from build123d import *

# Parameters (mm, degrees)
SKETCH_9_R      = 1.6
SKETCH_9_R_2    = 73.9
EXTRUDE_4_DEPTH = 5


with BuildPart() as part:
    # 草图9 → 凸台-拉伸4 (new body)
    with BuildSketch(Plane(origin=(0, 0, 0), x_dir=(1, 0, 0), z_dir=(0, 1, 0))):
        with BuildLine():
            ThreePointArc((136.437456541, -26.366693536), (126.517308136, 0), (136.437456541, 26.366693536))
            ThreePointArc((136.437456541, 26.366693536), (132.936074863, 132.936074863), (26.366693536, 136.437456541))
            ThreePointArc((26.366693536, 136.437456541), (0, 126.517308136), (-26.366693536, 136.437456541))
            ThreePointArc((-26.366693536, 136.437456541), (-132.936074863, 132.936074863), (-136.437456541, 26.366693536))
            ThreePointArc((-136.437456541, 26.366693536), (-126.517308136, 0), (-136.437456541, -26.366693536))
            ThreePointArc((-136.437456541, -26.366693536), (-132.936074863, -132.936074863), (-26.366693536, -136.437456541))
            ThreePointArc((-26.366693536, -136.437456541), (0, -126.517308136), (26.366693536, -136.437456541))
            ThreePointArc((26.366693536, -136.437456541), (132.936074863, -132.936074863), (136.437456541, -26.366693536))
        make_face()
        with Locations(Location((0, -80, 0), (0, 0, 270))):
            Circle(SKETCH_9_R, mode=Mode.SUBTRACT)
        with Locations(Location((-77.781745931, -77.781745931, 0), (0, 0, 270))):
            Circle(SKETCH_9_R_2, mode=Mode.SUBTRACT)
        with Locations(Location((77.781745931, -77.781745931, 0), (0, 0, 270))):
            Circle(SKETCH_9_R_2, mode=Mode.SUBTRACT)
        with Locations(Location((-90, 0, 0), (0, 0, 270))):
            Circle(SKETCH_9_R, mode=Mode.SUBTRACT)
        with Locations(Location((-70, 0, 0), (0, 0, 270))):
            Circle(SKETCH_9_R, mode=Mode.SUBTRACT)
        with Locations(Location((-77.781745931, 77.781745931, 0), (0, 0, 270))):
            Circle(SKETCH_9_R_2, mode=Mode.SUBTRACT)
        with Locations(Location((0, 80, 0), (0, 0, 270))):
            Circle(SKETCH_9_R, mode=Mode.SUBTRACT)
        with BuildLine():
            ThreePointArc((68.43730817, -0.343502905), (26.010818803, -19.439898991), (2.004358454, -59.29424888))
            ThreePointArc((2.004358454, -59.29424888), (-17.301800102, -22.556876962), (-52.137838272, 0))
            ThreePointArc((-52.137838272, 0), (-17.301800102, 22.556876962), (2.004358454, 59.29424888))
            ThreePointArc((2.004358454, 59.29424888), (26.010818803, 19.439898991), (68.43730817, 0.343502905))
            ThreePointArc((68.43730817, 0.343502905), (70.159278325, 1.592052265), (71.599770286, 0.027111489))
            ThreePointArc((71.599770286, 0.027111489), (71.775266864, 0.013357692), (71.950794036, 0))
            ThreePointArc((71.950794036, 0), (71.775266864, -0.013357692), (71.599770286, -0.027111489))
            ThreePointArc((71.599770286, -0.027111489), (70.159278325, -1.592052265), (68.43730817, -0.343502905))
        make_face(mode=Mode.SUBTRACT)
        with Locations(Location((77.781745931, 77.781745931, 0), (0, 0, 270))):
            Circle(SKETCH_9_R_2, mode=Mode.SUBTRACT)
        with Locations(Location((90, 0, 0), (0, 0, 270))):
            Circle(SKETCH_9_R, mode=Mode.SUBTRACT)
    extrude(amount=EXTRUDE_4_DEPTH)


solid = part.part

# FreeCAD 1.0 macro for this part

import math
import FreeCAD as App
import Part
import Sketcher

V = App.Vector

doc = App.newDocument("Part")
params = doc.addObject("Spreadsheet::Sheet", "Params")
for row, (alias, value) in enumerate([
    ("sketch1_radius", "40 mm"),
    ("sketch1_radius2", "78 mm"),
    ("sketch1_diameter", "147.8 mm"),
    ("sketch1_diameter2", "3.2 mm"),
    ("sketch1_radius3", "81.9 mm"),
    ("pad1_length", "5 mm"),
], start=1):
    params.set(f"A{row}", alias)
    params.set(f"B{row}", "=" + value)
    params.setAlias(f"B{row}", alias)

body = doc.addObject("PartDesign::Body", "Body")

# Sketch on XZ plane
sketch1 = body.newObject("Sketcher::SketchObject", "Sketch")
sketch1.AttachmentSupport = (doc.getObject("XZ_Plane"), [""])
sketch1.MapMode = "FlatFace"
sketch1.addGeometry(Part.ArcOfCircle(Part.Circle(V(166.52, 0, 0), V(0, 0, 1), 40), math.radians(139), math.radians(221)), False)
sketch1.addGeometry(Part.ArcOfCircle(Part.Circle(V(77.78, -77.78, 0), V(0, 0, 1), 78), math.radians(-131), math.radians(41)), False)
sketch1.addGeometry(Part.ArcOfCircle(Part.Circle(V(0, -166.52, 0), V(0, 0, 1), 40), math.radians(49), math.radians(131)), False)
sketch1.addGeometry(Part.ArcOfCircle(Part.Circle(V(-77.78, -77.78, 0), V(0, 0, 1), 78), math.radians(139), math.radians(311)), False)
sketch1.addGeometry(Part.ArcOfCircle(Part.Circle(V(-166.52, 0, 0), V(0, 0, 1), 40), math.radians(-41), math.radians(41)), False)
sketch1.addGeometry(Part.ArcOfCircle(Part.Circle(V(-77.78, 77.78, 0), V(0, 0, 1), 78), math.radians(49), math.radians(221)), False)
sketch1.addGeometry(Part.ArcOfCircle(Part.Circle(V(0, 166.52, 0), V(0, 0, 1), 40), math.radians(-131), math.radians(-49)), False)
sketch1.addGeometry(Part.ArcOfCircle(Part.Circle(V(77.78, 77.78, 0), V(0, 0, 1), 78), math.radians(-41), math.radians(131)), False)
sketch1.addGeometry(Part.Circle(V(-77.78, 77.78, 0), V(0, 0, 1), 73.9), False)
sketch1.addGeometry(Part.Circle(V(0, 80, 0), V(0, 0, 1), 1.6), False)
sketch1.addGeometry(Part.Circle(V(77.78, 77.78, 0), V(0, 0, 1), 73.9), False)
sketch1.addGeometry(Part.Circle(V(-90, 0, 0), V(0, 0, 1), 1.6), False)
sketch1.addGeometry(Part.Circle(V(-70, 0, 0), V(0, 0, 1), 1.6), False)
sketch1.addGeometry(Part.Circle(V(-77.78, -77.78, 0), V(0, 0, 1), 73.9), False)
sketch1.addGeometry(Part.ArcOfCircle(Part.Circle(V(70, 0, 0), V(0, 0, 1), 1.6), math.radians(1), math.radians(168)), False)
sketch1.addGeometry(Part.ArcOfCircle(Part.Circle(V(77.78, 77.78, 0), V(0, 0, 1), 78), math.radians(-166), math.radians(-97)), False)
sketch1.addGeometry(Part.ArcOfCircle(Part.Circle(V(-77.78, 77.78, 0), V(0, 0, 1), 81.9), math.radians(-72), math.radians(-13)), False)
sketch1.addGeometry(Part.ArcOfCircle(Part.Circle(V(-77.78, -77.78, 0), V(0, 0, 1), 81.9), math.radians(13), math.radians(72)), False)
sketch1.addGeometry(Part.ArcOfCircle(Part.Circle(V(77.78, -77.78, 0), V(0, 0, 1), 78), math.radians(97), math.radians(166)), False)
sketch1.addGeometry(Part.ArcOfCircle(Part.Circle(V(70, 0, 0), V(0, 0, 1), 1.6), math.radians(-168), math.radians(-1)), False)
sketch1.addGeometry(Part.ArcOfCircle(Part.Circle(V(77.78, -77.78, 0), V(0, 0, 1), 78), math.radians(94.29), math.radians(94.55)), False)
sketch1.addGeometry(Part.ArcOfCircle(Part.Circle(V(77.78, 77.78, 0), V(0, 0, 1), 78), math.radians(-94.55), math.radians(-94.29)), False)
sketch1.addGeometry(Part.Circle(V(90, 0, 0), V(0, 0, 1), 1.6), False)
sketch1.addGeometry(Part.Circle(V(0, -80, 0), V(0, 0, 1), 1.6), False)
sketch1.addGeometry(Part.Circle(V(77.78, -77.78, 0), V(0, 0, 1), 73.9), False)
sketch1.addConstraint(Sketcher.Constraint("Tangent", 0, 2, 1, 2))
sketch1.addConstraint(Sketcher.Constraint("Tangent", 1, 1, 2, 1))
sketch1.addConstraint(Sketcher.Constraint("Tangent", 2, 2, 3, 2))
sketch1.addConstraint(Sketcher.Constraint("Tangent", 3, 1, 4, 1))
sketch1.addConstraint(Sketcher.Constraint("Tangent", 4, 2, 5, 2))
sketch1.addConstraint(Sketcher.Constraint("Tangent", 5, 1, 6, 1))
sketch1.addConstraint(Sketcher.Constraint("Tangent", 6, 2, 7, 2))
sketch1.addConstraint(Sketcher.Constraint("Tangent", 7, 1, 0, 1))
sketch1.addConstraint(Sketcher.Constraint("Coincident", 14, 2, 15, 2))
sketch1.addConstraint(Sketcher.Constraint("Coincident", 15, 1, 16, 2))
sketch1.addConstraint(Sketcher.Constraint("Coincident", 16, 1, 17, 2))
sketch1.addConstraint(Sketcher.Constraint("Coincident", 17, 1, 18, 2))
sketch1.addConstraint(Sketcher.Constraint("Coincident", 18, 1, 19, 1))
sketch1.addConstraint(Sketcher.Constraint("Coincident", 19, 2, 20, 2))
sketch1.addConstraint(Sketcher.Constraint("Coincident", 20, 1, 21, 2))
sketch1.addConstraint(Sketcher.Constraint("Coincident", 21, 1, 14, 1))
sketch1.addConstraint(Sketcher.Constraint("Coincident", 8, 3, 5, 3))
sketch1.addConstraint(Sketcher.Constraint("Coincident", 10, 3, 7, 3))
sketch1.addConstraint(Sketcher.Constraint("Coincident", 13, 3, 3, 3))
sketch1.addConstraint(Sketcher.Constraint("Coincident", 15, 3, 7, 3))
sketch1.addConstraint(Sketcher.Constraint("Coincident", 16, 3, 5, 3))
sketch1.addConstraint(Sketcher.Constraint("Coincident", 17, 3, 3, 3))
sketch1.addConstraint(Sketcher.Constraint("Coincident", 18, 3, 1, 3))
sketch1.addConstraint(Sketcher.Constraint("Coincident", 19, 3, 14, 3))
sketch1.addConstraint(Sketcher.Constraint("Coincident", 24, 3, 1, 3))
sketch1.addConstraint(Sketcher.Constraint("Equal", 0, 2))
sketch1.addConstraint(Sketcher.Constraint("Equal", 1, 3))
sketch1.addConstraint(Sketcher.Constraint("Equal", 2, 4))
sketch1.addConstraint(Sketcher.Constraint("Equal", 3, 5))
sketch1.addConstraint(Sketcher.Constraint("Equal", 4, 6))
sketch1.addConstraint(Sketcher.Constraint("Equal", 5, 7))
sketch1.addConstraint(Sketcher.Constraint("Equal", 8, 10))
sketch1.addConstraint(Sketcher.Constraint("Equal", 9, 11))
sketch1.addConstraint(Sketcher.Constraint("Equal", 11, 12))
sketch1.addConstraint(Sketcher.Constraint("Equal", 10, 13))
sketch1.addConstraint(Sketcher.Constraint("Equal", 12, 14))
sketch1.addConstraint(Sketcher.Constraint("Equal", 7, 15))
sketch1.addConstraint(Sketcher.Constraint("Equal", 16, 17))
sketch1.addConstraint(Sketcher.Constraint("Equal", 15, 18))
sketch1.addConstraint(Sketcher.Constraint("Equal", 14, 19))
sketch1.addConstraint(Sketcher.Constraint("Equal", 20, 21))
sketch1.addConstraint(Sketcher.Constraint("Equal", 19, 22))
sketch1.addConstraint(Sketcher.Constraint("Equal", 22, 23))
sketch1.addConstraint(Sketcher.Constraint("Equal", 13, 24))
sketch1.addConstraint(Sketcher.Constraint("Symmetric", 0, 3, 4, 3, -1, 1))
sketch1.addConstraint(Sketcher.Constraint("Symmetric", 2, 3, 6, 3, -1, 1))
sketch1.addConstraint(Sketcher.Constraint("Symmetric", 12, 3, 14, 3, -1, 1))
sketch1.addConstraint(Sketcher.Constraint("Symmetric", 11, 3, 22, 3, -1, 1))
sketch1.addConstraint(Sketcher.Constraint("Symmetric", 9, 3, 23, 3, -1, 1))
sketch1.addConstraint(Sketcher.Constraint("Symmetric", 1, 3, 3, 3, -2))
sketch1.addConstraint(Sketcher.Constraint("Symmetric", 20, 3, 21, 3, -1))
sketch1.addConstraint(Sketcher.Constraint("PointOnObject", 9, 3, -2))
sketch1.addConstraint(Sketcher.Constraint("PointOnObject", 11, 3, -1))
sketch1.addConstraint(Sketcher.Constraint("PointOnObject", 12, 3, -1))
sketch1.addConstraint(Sketcher.Constraint("Vertical", 18, 3, 20, 3))
sketch1.addConstraint(Sketcher.Constraint("Radius", 0, 40.0))
sketch1.addConstraint(Sketcher.Constraint("Radius", 1, 78.0))
sketch1.addConstraint(Sketcher.Constraint("Diameter", 8, 147.8))
sketch1.addConstraint(Sketcher.Constraint("Diameter", 9, 3.2))
sketch1.addConstraint(Sketcher.Constraint("Radius", 16, 81.9))
sketch1.addConstraint(Sketcher.Constraint("DistanceY", -1, 1, 9, 3, 80.0))
sketch1.addConstraint(Sketcher.Constraint("DistanceX", 11, 3, -1, 1, 90.0))
sketch1.addConstraint(Sketcher.Constraint("DistanceX", 12, 3, -1, 1, 70.0))
sketch1.addConstraint(Sketcher.Constraint("Radius", 20, 78.000016))
sketch1.addConstraint(Sketcher.Constraint("DistanceX", -1, 1, 0, 3, 166.517308))
sketch1.addConstraint(Sketcher.Constraint("DistanceY", 2, 3, -1, 1, 166.517308))
sketch1.addConstraint(Sketcher.Constraint("DistanceY", 20, 3, -1, 1, 77.781762))
sketch1.setExpression("Constraints[55]", "Params.sketch1_radius")
sketch1.setExpression("Constraints[56]", "Params.sketch1_radius2")
sketch1.setExpression("Constraints[57]", "Params.sketch1_diameter")
sketch1.setExpression("Constraints[58]", "Params.sketch1_diameter2")
sketch1.setExpression("Constraints[59]", "Params.sketch1_radius3")
pad1 = body.newObject("PartDesign::Pad", "Pad")
pad1.Profile = sketch1
pad1.setExpression("Length", "Params.pad1_length")
pad1.Reversed = True

doc.recompute()
